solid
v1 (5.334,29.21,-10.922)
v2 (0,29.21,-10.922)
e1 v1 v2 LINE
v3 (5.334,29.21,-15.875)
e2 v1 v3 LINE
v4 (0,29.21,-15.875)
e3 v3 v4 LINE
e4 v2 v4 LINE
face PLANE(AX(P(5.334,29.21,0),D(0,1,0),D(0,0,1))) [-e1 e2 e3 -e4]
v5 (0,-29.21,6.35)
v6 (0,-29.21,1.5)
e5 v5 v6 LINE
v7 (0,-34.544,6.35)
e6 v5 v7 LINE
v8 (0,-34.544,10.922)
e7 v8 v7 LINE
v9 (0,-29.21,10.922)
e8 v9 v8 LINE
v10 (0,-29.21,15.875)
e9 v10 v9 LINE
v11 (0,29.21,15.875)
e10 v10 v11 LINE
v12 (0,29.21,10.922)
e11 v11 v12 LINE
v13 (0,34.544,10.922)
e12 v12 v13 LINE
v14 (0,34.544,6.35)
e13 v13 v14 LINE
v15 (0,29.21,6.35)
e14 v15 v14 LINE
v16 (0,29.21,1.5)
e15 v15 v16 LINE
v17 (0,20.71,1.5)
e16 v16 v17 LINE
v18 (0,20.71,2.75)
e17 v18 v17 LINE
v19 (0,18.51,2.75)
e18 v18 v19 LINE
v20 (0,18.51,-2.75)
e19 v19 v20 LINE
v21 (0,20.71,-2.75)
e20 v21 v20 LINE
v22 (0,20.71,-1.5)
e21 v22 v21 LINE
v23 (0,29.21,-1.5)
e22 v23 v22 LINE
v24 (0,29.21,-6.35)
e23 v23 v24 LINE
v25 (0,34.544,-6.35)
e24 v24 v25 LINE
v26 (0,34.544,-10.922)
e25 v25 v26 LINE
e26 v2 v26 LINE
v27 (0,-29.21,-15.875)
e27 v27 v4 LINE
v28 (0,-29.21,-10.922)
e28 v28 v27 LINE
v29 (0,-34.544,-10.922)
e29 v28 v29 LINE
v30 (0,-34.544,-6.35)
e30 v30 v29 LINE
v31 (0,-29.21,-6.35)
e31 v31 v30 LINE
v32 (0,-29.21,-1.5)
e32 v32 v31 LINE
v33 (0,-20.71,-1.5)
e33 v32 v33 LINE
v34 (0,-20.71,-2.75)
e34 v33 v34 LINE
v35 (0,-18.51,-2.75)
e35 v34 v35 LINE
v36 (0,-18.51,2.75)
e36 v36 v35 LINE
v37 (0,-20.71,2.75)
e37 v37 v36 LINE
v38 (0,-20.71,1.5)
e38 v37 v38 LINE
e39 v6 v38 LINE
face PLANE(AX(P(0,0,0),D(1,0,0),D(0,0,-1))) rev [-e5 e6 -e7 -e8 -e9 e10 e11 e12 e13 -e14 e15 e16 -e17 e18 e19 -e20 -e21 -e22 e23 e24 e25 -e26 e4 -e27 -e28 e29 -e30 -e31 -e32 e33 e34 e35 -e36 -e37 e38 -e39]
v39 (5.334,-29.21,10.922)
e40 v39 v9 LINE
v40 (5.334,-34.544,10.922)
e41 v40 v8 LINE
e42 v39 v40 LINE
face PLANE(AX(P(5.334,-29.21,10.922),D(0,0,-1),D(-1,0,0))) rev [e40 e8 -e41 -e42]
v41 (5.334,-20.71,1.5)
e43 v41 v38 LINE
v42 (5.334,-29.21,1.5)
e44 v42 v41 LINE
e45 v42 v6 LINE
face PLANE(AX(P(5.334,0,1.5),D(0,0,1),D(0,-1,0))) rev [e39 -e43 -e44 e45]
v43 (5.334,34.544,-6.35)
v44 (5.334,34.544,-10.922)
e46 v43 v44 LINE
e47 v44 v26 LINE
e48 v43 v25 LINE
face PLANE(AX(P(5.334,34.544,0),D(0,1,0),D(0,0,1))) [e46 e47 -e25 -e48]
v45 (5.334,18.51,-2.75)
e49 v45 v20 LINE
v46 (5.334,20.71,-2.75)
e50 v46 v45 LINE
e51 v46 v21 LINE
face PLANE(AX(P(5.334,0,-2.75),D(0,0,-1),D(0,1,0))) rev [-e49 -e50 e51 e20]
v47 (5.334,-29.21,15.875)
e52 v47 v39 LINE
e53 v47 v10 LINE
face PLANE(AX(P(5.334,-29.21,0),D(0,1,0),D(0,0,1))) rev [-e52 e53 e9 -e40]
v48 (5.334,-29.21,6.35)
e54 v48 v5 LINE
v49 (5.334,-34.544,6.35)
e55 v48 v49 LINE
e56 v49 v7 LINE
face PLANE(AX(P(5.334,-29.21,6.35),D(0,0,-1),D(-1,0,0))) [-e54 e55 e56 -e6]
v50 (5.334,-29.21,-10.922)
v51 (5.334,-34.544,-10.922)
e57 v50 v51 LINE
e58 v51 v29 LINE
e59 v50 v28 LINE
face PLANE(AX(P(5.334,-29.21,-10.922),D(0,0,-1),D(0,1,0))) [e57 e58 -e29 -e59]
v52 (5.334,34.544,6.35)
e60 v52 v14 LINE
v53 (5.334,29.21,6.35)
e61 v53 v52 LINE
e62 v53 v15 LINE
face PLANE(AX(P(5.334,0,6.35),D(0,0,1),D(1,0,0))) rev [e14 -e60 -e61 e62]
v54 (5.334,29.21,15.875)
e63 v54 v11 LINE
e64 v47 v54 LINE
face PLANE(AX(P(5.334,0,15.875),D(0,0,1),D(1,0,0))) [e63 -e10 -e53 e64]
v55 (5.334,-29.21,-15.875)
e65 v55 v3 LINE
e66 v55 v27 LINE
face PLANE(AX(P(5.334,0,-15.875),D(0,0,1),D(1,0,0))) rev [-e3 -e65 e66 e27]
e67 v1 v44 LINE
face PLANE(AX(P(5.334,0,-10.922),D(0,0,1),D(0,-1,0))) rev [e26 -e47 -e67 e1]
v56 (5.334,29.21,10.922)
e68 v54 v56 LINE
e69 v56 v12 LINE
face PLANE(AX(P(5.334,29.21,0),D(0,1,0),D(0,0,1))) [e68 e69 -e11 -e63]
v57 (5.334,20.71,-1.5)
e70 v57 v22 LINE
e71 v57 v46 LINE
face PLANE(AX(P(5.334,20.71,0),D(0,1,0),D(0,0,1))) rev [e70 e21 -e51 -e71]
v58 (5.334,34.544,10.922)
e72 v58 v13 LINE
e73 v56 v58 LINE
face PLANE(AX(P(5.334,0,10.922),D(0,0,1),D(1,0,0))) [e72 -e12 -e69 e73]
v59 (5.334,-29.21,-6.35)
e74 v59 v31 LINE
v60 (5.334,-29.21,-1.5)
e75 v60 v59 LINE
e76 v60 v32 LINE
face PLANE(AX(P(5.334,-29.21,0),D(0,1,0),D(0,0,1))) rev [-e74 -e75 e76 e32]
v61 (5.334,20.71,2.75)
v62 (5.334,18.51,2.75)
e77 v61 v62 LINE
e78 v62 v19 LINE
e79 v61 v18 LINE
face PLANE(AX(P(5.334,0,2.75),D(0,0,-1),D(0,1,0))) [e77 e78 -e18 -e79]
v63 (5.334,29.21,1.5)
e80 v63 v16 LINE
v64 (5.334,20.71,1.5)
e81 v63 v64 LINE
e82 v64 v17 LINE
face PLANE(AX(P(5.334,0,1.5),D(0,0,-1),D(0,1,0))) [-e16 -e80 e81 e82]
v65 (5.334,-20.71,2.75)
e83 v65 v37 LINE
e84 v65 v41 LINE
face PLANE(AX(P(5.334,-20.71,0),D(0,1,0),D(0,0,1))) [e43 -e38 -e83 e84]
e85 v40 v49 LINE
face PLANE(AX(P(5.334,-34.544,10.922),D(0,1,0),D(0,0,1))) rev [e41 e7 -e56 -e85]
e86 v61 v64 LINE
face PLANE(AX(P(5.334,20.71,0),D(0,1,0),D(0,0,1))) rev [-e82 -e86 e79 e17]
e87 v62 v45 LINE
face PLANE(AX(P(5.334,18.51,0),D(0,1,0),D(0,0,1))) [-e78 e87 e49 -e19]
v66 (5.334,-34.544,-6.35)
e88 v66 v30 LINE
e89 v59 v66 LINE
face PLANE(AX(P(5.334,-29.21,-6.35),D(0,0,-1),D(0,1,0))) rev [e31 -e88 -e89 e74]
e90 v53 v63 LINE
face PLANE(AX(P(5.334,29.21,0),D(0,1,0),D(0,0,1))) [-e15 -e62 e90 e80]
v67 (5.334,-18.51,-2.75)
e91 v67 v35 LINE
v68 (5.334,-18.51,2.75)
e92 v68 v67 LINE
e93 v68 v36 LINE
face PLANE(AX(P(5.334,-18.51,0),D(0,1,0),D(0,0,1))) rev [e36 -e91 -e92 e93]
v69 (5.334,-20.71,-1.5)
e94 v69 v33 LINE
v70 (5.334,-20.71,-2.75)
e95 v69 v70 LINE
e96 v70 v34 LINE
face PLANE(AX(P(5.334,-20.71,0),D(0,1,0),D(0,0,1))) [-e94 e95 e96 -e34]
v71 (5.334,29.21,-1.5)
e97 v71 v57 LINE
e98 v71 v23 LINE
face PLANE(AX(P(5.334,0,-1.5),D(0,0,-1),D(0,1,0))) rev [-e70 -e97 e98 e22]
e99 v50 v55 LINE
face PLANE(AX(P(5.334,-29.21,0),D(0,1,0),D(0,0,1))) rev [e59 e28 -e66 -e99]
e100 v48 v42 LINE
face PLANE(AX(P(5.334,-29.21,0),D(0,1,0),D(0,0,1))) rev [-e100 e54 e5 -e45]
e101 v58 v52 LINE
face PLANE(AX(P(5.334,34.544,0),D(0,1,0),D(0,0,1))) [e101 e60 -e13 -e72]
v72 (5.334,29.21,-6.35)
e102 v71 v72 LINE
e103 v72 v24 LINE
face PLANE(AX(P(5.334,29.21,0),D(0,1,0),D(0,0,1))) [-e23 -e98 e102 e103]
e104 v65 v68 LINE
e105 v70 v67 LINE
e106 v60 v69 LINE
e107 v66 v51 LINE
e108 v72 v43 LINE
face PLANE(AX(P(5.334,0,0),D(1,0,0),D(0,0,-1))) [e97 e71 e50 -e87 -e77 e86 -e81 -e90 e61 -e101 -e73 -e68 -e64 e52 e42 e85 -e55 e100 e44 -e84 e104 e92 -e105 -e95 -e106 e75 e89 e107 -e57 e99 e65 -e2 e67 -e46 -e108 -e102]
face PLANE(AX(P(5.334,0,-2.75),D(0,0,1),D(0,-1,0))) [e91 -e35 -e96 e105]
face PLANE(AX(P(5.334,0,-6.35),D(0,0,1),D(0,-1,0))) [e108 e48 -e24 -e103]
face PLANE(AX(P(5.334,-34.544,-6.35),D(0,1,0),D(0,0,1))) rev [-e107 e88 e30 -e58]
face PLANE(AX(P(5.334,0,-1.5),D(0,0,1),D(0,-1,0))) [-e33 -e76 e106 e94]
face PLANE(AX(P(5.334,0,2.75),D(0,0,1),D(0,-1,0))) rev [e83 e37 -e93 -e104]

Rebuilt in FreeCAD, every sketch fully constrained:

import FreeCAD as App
import Part
import Sketcher
from FreeCAD import Vector
Q = App.Units.Quantity


def add_polygon(sketch, points):
    """Adds a closed chain of lines whose ends are joined by coincident constraints."""
    first, n = sketch.GeometryCount, len(points)
    for a, b in zip(points, points[1:] + points[:1]):
        sketch.addGeometry(Part.LineSegment(App.Vector(*a, 0), App.Vector(*b, 0)), False)
    for i in range(n):
        sketch.addConstraint(Sketcher.Constraint("Coincident", first + i, 2, first + (i + 1) % n, 1))

doc = App.newDocument("Part")
body = doc.addObject("PartDesign::Body", "Body")

# Sketch on YZ plane
sketch1 = doc.addObject("Sketcher::SketchObject", "Sketch")
body.addObject(sketch1)
sketch1.AttachmentSupport = (doc.YZ_Plane, [""])
sketch1.MapMode = "FlatFace"
add_polygon(sketch1, [(-29.2, 15.9), (-29.2, 10.9), (-34.5, 10.9), (-34.5, 6.3), (-29.2, 6.3), (-29.2, 1.5), (-20.7, 1.5), (-20.7, 2.8), (-18.5, 2.8), (-18.5, -2.8), (-20.7, -2.8), (-20.7, -1.5), (-29.2, -1.5), (-29.2, -6.3), (-34.5, -6.3), (-34.5, -10.9), (-29.2, -10.9), (-29.2, -15.9), (29.2, -15.9), (29.2, -10.9), (34.5, -10.9), (34.5, -6.3), (29.2, -6.3), (29.2, -1.5), (20.7, -1.5), (20.7, -2.8), (18.5, -2.8), (18.5, 2.8), (20.7, 2.8), (20.7, 1.5), (29.2, 1.5), (29.2, 6.3), (34.5, 6.3), (34.5, 10.9), (29.2, 10.9), (29.2, 15.9)])  # lines 0-35
sketch1.addConstraint(Sketcher.Constraint("Vertical", 0))
sketch1.addConstraint(Sketcher.Constraint("Horizontal", 1))
sketch1.addConstraint(Sketcher.Constraint("Vertical", 2))
sketch1.addConstraint(Sketcher.Constraint("Horizontal", 3))
sketch1.addConstraint(Sketcher.Constraint("Vertical", 4))
sketch1.addConstraint(Sketcher.Constraint("Horizontal", 5))
sketch1.addConstraint(Sketcher.Constraint("Vertical", 6))
sketch1.addConstraint(Sketcher.Constraint("Horizontal", 7))
sketch1.addConstraint(Sketcher.Constraint("Vertical", 8))
sketch1.addConstraint(Sketcher.Constraint("Horizontal", 9))
sketch1.addConstraint(Sketcher.Constraint("Vertical", 10))
sketch1.addConstraint(Sketcher.Constraint("Horizontal", 11))
sketch1.addConstraint(Sketcher.Constraint("Vertical", 12))
sketch1.addConstraint(Sketcher.Constraint("Horizontal", 13))
sketch1.addConstraint(Sketcher.Constraint("Vertical", 14))
sketch1.addConstraint(Sketcher.Constraint("Horizontal", 15))
sketch1.addConstraint(Sketcher.Constraint("Vertical", 16))
sketch1.addConstraint(Sketcher.Constraint("Horizontal", 17))
sketch1.addConstraint(Sketcher.Constraint("Vertical", 18))
sketch1.addConstraint(Sketcher.Constraint("Horizontal", 19))
sketch1.addConstraint(Sketcher.Constraint("Vertical", 20))
sketch1.addConstraint(Sketcher.Constraint("Horizontal", 21))
sketch1.addConstraint(Sketcher.Constraint("Vertical", 22))
sketch1.addConstraint(Sketcher.Constraint("Horizontal", 23))
sketch1.addConstraint(Sketcher.Constraint("Vertical", 24))
sketch1.addConstraint(Sketcher.Constraint("Horizontal", 25))
sketch1.addConstraint(Sketcher.Constraint("Vertical", 26))
sketch1.addConstraint(Sketcher.Constraint("Horizontal", 27))
sketch1.addConstraint(Sketcher.Constraint("Vertical", 28))
sketch1.addConstraint(Sketcher.Constraint("Horizontal", 29))
sketch1.addConstraint(Sketcher.Constraint("Vertical", 30))
sketch1.addConstraint(Sketcher.Constraint("Horizontal", 31))
sketch1.addConstraint(Sketcher.Constraint("Vertical", 32))
sketch1.addConstraint(Sketcher.Constraint("Horizontal", 33))
sketch1.addConstraint(Sketcher.Constraint("Vertical", 34))
sketch1.addConstraint(Sketcher.Constraint("Horizontal", 35))
sketch1.addConstraint(Sketcher.Constraint("Symmetric", 0, 2, 18, 2, -1, 1))
sketch1.addConstraint(Sketcher.Constraint("Symmetric", 2, 2, 20, 2, -1, 1))
sketch1.addConstraint(Sketcher.Constraint("Symmetric", 4, 2, 22, 2, -1, 1))
sketch1.addConstraint(Sketcher.Constraint("Symmetric", 6, 2, 24, 2, -1, 1))
sketch1.addConstraint(Sketcher.Constraint("Symmetric", 8, 2, 26, 2, -1, 1))
sketch1.addConstraint(Sketcher.Constraint("Symmetric", 10, 2, 28, 2, -1, 1))
sketch1.addConstraint(Sketcher.Constraint("Symmetric", 12, 2, 30, 2, -1, 1))
sketch1.addConstraint(Sketcher.Constraint("Symmetric", 14, 2, 32, 2, -1, 1))
sketch1.addConstraint(Sketcher.Constraint("Symmetric", 16, 2, 34, 2, -1, 1))
sketch1.addConstraint(Sketcher.Constraint("Symmetric", 15, 2, 18, 2, -2))
sketch1.addConstraint(Sketcher.Constraint("Symmetric", 13, 2, 20, 2, -2))
sketch1.addConstraint(Sketcher.Constraint("Symmetric", 11, 2, 22, 2, -2))
sketch1.addConstraint(Sketcher.Constraint("Symmetric", 9, 2, 24, 2, -2))
sketch1.addConstraint(Sketcher.Constraint("Vertical", 0, 2, 3, 2))
sketch1.addConstraint(Sketcher.Constraint("DistanceX", 17, 1, 17, 2, Q("2.3 in")))
sketch1.addConstraint(Sketcher.Constraint("DistanceX", 1, 2, 1, 1, Q("0.21 in")))
sketch1.addConstraint(Sketcher.Constraint("DistanceY", 2, 2, 2, 1, Q("0.18 in")))
sketch1.addConstraint(Sketcher.Constraint("DistanceY", 13, 2, 2, 2, Q("0.5 in")))
sketch1.addConstraint(Sketcher.Constraint("DistanceY", 0, 2, 0, 1, Q("0.195 in")))
sketch1.addConstraint(Sketcher.Constraint("DistanceX", 5, 1, 5, 2, Q("8.5 mm")))
sketch1.addConstraint(Sketcher.Constraint("DistanceX", 7, 1, 7, 2, Q("2.2 mm")))
sketch1.addConstraint(Sketcher.Constraint("DistanceY", 4, 2, 4, 1, Q("4.85 mm")))
sketch1.addConstraint(Sketcher.Constraint("DistanceY", 6, 1, 6, 2, Q("1.25 mm")))
pad1 = doc.addObject("PartDesign::Pad", "Pad")
body.addObject(pad1)
pad1.Profile = sketch1
pad1.Length = Q("0.21 in")

doc.recompute()
